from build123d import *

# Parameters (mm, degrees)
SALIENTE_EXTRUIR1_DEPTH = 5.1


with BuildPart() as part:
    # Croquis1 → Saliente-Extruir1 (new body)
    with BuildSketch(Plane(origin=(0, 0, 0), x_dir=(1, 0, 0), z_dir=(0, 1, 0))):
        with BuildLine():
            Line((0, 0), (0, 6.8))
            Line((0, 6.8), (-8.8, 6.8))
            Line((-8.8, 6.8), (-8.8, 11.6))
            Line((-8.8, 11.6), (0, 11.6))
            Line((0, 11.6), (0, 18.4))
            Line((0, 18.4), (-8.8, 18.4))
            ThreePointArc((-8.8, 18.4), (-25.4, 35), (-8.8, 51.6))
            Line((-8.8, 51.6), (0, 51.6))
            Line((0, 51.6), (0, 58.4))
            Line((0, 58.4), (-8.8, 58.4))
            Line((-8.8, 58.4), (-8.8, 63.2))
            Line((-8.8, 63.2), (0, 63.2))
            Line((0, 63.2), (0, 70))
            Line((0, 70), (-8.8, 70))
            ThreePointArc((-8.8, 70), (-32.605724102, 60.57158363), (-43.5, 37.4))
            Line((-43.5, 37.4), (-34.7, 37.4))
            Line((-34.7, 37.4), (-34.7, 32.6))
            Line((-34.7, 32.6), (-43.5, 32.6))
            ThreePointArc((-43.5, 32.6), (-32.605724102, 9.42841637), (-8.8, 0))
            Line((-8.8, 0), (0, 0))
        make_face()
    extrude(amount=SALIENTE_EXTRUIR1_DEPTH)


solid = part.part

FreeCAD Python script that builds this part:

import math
import FreeCAD as App
import Part
import Sketcher

V = App.Vector
Q = App.Units.Quantity

doc = App.newDocument("Part")
body = doc.addObject("PartDesign::Body", "Body")

# Sketch on XZ plane
sketch1 = doc.addObject("Sketcher::SketchObject", "Sketch")
body.addObject(sketch1)
sketch1.AttachmentSupport = (doc.XZ_Plane, [""])
sketch1.MapMode = "FlatFace"
sketch1.addGeometry([
    Part.LineSegment(V(0, 0, 0), V(0, -6.8, 0)),  # 0
    Part.LineSegment(V(0, -6.8, 0), V(-8.8, -6.8, 0)),  # 1
    Part.LineSegment(V(-8.8, -6.8, 0), V(-8.8, -11.6, 0)),  # 2
    Part.LineSegment(V(-8.8, -11.6, 0), V(0, -11.6, 0)),  # 3
    Part.LineSegment(V(0, -11.6, 0), V(0, -18.4, 0)),  # 4
    Part.LineSegment(V(0, -18.4, 0), V(-8.8, -18.4, 0)),  # 5
    Part.ArcOfCircle(Part.Circle(V(-8.8, -35, 0), V(0, 0, 1), 16.6), math.radians(90), math.radians(270)),  # 6
    Part.LineSegment(V(-8.8, -51.6, 0), V(0, -51.6, 0)),  # 7
    Part.LineSegment(V(0, -51.6, 0), V(0, -58.4, 0)),  # 8
    Part.LineSegment(V(0, -58.4, 0), V(-8.8, -58.4, 0)),  # 9
    Part.LineSegment(V(-8.8, -58.4, 0), V(-8.8, -63.2, 0)),  # 10
    Part.LineSegment(V(-8.8, -63.2, 0), V(0, -63.2, 0)),  # 11
    Part.LineSegment(V(0, -63.2, 0), V(0, -70, 0)),  # 12
    Part.LineSegment(V(0, -70, 0), V(-8.8, -70, 0)),  # 13
    Part.ArcOfCircle(Part.Circle(V(-8.8, -35.2, 0), V(0, 0, 1), 34.8), math.radians(-176), math.radians(-90)),  # 14
    Part.LineSegment(V(-43.5, -37.4, 0), V(-34.7, -37.4, 0)),  # 15
    Part.LineSegment(V(-34.7, -37.4, 0), V(-34.7, -32.6, 0)),  # 16
    Part.LineSegment(V(-34.7, -32.6, 0), V(-43.5, -32.6, 0)),  # 17
    Part.ArcOfCircle(Part.Circle(V(-8.8, -34.8, 0), V(0, 0, 1), 34.8), math.radians(90), math.radians(176)),  # 18
    Part.LineSegment(V(-8.8, 0, 0), V(0, 0, 0)),  # 19
], False)
sketch1.addConstraint([
    Sketcher.Constraint("Coincident", 0, 2, 1, 1),
    Sketcher.Constraint("Coincident", 1, 2, 2, 1),
    Sketcher.Constraint("Coincident", 2, 2, 3, 1),
    Sketcher.Constraint("Coincident", 3, 2, 4, 1),
    Sketcher.Constraint("Coincident", 4, 2, 5, 1),
    Sketcher.Constraint("Tangent", 5, 2, 6, 1),
    Sketcher.Constraint("Tangent", 6, 2, 7, 1),
    Sketcher.Constraint("Coincident", 7, 2, 8, 1),
    Sketcher.Constraint("Coincident", 8, 2, 9, 1),
    Sketcher.Constraint("Coincident", 9, 2, 10, 1),
    Sketcher.Constraint("Coincident", 10, 2, 11, 1),
    Sketcher.Constraint("Coincident", 11, 2, 12, 1),
    Sketcher.Constraint("Coincident", 12, 2, 13, 1),
    Sketcher.Constraint("Tangent", 13, 2, 14, 2),
    Sketcher.Constraint("Coincident", 14, 1, 15, 1),
    Sketcher.Constraint("Coincident", 15, 2, 16, 1),
    Sketcher.Constraint("Coincident", 16, 2, 17, 1),
    Sketcher.Constraint("Coincident", 17, 2, 18, 2),
    Sketcher.Constraint("Tangent", 18, 1, 19, 1),
    Sketcher.Constraint("Coincident", 19, 2, 0, 1),
    Sketcher.Constraint("Vertical", 0),
    Sketcher.Constraint("Horizontal", 1),
    Sketcher.Constraint("Vertical", 2),
    Sketcher.Constraint("Horizontal", 3),
    Sketcher.Constraint("Vertical", 4),
    Sketcher.Constraint("Horizontal", 5),
    Sketcher.Constraint("Horizontal", 7),
    Sketcher.Constraint("Vertical", 8),
    Sketcher.Constraint("Horizontal", 9),
    Sketcher.Constraint("Vertical", 10),
    Sketcher.Constraint("Horizontal", 11),
    Sketcher.Constraint("Vertical", 12),
    Sketcher.Constraint("Horizontal", 13),
    Sketcher.Constraint("Horizontal", 15),
    Sketcher.Constraint("Vertical", 16),
    Sketcher.Constraint("Horizontal", 17),
    Sketcher.Constraint("Horizontal", 19),
    Sketcher.Constraint("Coincident", 19, 2, -1, 1),
    Sketcher.Constraint("Equal", 14, 18),
    Sketcher.Constraint("PointOnObject", 3, 2, -2),
    Sketcher.Constraint("PointOnObject", 7, 2, -2),
    Sketcher.Constraint("PointOnObject", 11, 2, -2),
    Sketcher.Constraint("Vertical", 6, 3, 14, 3),
    Sketcher.Constraint("Vertical", 14, 3, 18, 3),
    Sketcher.Constraint("Vertical", 18, 3, 1, 2),
    Sketcher.Constraint("Vertical", 6, 2, 9, 2),
    Sketcher.Constraint("Vertical", 14, 1, 17, 2),
    Sketcher.Constraint("Equal", 13, 15),
    Sketcher.Constraint("Equal", 0, 4),
    Sketcher.Constraint("Equal", 4, 8),
    Sketcher.Constraint("Equal", 2, 10),
    Sketcher.Constraint("Equal", 8, 12),
    Sketcher.Constraint("Equal", 10, 16),
    Sketcher.Constraint("Radius", 6, Q("16.6 mm")),
    Sketcher.Constraint("DistanceX", 1, 2, 1, 1, Q("8.8 mm")),
    Sketcher.Constraint("DistanceY", 0, 2, 0, 1, Q("6.8 mm")),
    Sketcher.Constraint("DistanceY", 2, 2, 2, 1, Q("4.8 mm")),
    Sketcher.Constraint("DistanceX", 14, 1, -1, 1, Q("43.5 mm")),
])
pad1 = doc.addObject("PartDesign::Pad", "Pad")
body.addObject(pad1)
pad1.Profile = sketch1
pad1.Length = 5.1
pad1.Reversed = True

doc.recompute()
